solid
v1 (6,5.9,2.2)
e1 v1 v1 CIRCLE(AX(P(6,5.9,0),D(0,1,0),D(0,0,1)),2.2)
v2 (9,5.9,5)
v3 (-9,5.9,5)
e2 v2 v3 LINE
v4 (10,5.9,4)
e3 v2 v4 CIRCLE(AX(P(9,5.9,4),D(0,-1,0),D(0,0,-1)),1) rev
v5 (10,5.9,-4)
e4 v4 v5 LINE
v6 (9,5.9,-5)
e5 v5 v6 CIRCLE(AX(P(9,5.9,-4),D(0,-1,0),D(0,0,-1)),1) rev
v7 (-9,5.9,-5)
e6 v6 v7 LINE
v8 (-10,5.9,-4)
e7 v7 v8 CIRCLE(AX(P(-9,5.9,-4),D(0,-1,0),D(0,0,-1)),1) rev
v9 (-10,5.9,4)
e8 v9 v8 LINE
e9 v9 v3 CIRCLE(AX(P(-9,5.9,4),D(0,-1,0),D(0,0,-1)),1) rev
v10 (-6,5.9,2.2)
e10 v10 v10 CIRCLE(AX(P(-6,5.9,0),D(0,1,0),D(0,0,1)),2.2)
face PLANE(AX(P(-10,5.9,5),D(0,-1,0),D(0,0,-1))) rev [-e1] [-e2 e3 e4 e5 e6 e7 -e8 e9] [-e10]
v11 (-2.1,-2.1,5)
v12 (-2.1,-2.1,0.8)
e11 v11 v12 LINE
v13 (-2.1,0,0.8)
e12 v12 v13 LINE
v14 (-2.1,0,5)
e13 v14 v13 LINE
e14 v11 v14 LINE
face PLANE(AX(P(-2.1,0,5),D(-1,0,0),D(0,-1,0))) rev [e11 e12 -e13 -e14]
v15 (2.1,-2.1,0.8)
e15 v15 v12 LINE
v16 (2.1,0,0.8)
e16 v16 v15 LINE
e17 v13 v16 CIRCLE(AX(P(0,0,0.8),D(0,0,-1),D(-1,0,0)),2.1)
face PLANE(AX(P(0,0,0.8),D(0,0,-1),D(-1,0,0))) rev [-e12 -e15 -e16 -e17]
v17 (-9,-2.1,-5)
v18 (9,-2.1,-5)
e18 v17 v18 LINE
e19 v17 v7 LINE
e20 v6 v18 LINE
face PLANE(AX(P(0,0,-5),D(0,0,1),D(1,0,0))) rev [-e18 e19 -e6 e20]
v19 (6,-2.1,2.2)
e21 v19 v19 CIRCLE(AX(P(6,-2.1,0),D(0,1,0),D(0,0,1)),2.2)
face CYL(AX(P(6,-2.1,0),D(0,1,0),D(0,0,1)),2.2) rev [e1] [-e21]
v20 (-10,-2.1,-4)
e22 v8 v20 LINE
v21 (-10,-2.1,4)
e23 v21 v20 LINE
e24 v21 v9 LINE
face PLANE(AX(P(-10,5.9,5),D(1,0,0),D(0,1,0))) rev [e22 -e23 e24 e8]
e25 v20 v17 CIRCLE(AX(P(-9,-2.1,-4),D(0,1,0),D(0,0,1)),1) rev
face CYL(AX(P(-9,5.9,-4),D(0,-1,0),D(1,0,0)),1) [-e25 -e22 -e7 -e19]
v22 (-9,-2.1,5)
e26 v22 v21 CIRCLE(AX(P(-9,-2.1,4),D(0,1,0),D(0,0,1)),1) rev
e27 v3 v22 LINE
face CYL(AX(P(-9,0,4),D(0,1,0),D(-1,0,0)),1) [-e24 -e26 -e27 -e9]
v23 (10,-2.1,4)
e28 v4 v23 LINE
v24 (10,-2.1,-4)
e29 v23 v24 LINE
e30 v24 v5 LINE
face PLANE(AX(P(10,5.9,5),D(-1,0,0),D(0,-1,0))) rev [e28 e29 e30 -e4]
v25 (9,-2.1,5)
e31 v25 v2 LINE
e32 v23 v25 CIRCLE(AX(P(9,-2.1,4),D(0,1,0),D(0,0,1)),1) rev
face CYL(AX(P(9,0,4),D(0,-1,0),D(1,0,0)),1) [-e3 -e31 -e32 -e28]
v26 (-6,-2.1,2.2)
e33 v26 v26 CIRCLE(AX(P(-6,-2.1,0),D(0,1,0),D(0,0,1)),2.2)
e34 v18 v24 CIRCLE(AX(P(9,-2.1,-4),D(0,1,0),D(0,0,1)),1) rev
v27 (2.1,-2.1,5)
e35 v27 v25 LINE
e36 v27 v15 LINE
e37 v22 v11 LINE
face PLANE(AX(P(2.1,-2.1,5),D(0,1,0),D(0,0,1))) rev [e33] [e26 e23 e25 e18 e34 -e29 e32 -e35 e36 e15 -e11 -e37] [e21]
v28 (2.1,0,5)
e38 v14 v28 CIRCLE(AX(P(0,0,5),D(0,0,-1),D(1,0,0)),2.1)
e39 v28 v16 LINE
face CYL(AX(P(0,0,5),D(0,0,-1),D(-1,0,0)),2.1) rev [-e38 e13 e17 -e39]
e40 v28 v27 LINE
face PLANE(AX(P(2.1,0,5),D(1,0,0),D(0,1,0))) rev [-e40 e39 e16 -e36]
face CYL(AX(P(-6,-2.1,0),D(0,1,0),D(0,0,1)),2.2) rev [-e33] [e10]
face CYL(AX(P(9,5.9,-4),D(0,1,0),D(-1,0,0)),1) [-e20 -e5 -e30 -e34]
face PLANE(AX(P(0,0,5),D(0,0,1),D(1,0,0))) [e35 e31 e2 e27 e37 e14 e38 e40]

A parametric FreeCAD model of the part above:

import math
import FreeCAD as App
import Part
import Sketcher
from FreeCAD import Vector


def edges_at(feature, points):
    """Names of the edges that pass closest to the given points."""
    edges = feature.Shape.Edges
    near = lambda p: min(range(len(edges)), key=lambda i: edges[i].distToShape(Part.Vertex(*p))[0])
    return sorted({f"Edge{near(p) + 1}" for p in points})

doc = App.newDocument("Part")
body = doc.addObject("PartDesign::Body", "Body")

sketch1 = body.newObject("Sketcher::SketchObject", "Sketch")
sketch1.AttachmentSupport = (doc.getObject("XY_Plane"), [""])
sketch1.MapMode = "FlatFace"
sketch1.addGeometry(Part.LineSegment(Vector(2.1, -2.1, 0), Vector(10, -2.1, 0)), False)
sketch1.addGeometry(Part.LineSegment(Vector(10, -2.1, 0), Vector(10, 5.9, 0)), False)
sketch1.addGeometry(Part.LineSegment(Vector(10, 5.9, 0), Vector(-10, 5.9, 0)), False)
sketch1.addGeometry(Part.LineSegment(Vector(-10, 5.9, 0), Vector(-10, -2.1, 0)), False)
sketch1.addGeometry(Part.LineSegment(Vector(-10, -2.1, 0), Vector(-2.1, -2.1, 0)), False)
sketch1.addGeometry(Part.LineSegment(Vector(-2.1, -2.1, 0), Vector(-2.1, 0, 0)), False)
sketch1.addGeometry(Part.ArcOfCircle(Part.Circle(Vector(0, 0, 0), Vector(0, 0, 1), 2.1), math.radians(0), math.radians(180)), False)
sketch1.addGeometry(Part.LineSegment(Vector(2.1, 0, 0), Vector(2.1, -2.1, 0)), False)
sketch1.addConstraint(Sketcher.Constraint("Coincident", 0, 2, 1, 1))
sketch1.addConstraint(Sketcher.Constraint("Coincident", 1, 2, 2, 1))
sketch1.addConstraint(Sketcher.Constraint("Coincident", 2, 2, 3, 1))
sketch1.addConstraint(Sketcher.Constraint("Coincident", 3, 2, 4, 1))
sketch1.addConstraint(Sketcher.Constraint("Coincident", 4, 2, 5, 1))
sketch1.addConstraint(Sketcher.Constraint("Tangent", 5, 2, 6, 2))
sketch1.addConstraint(Sketcher.Constraint("Tangent", 6, 1, 7, 1))
sketch1.addConstraint(Sketcher.Constraint("Coincident", 7, 2, 0, 1))
sketch1.addConstraint(Sketcher.Constraint("Horizontal", 0))
sketch1.addConstraint(Sketcher.Constraint("Vertical", 1))
sketch1.addConstraint(Sketcher.Constraint("Horizontal", 2))
sketch1.addConstraint(Sketcher.Constraint("Vertical", 3))
sketch1.addConstraint(Sketcher.Constraint("Horizontal", 4))
sketch1.addConstraint(Sketcher.Constraint("Vertical", 5))
sketch1.addConstraint(Sketcher.Constraint("Vertical", 7))
sketch1.addConstraint(Sketcher.Constraint("Coincident", 6, 3, -1, 1))
sketch1.addConstraint(Sketcher.Constraint("Symmetric", 0, 2, 3, 2, -2))
sketch1.addConstraint(Sketcher.Constraint("Radius", 6, 2.1))
sketch1.addConstraint(Sketcher.Constraint("DistanceX", 2, 2, 2, 1, 20.0))
sketch1.addConstraint(Sketcher.Constraint("DistanceY", 1, 1, 1, 2, 8.0))
sketch1.addConstraint(Sketcher.Constraint("DistanceY", 5, 1, 5, 2, 2.1))
pad1 = body.newObject("PartDesign::Pad", "Pad")
pad1.Profile = sketch1
pad1.Length = 10
pad1.Midplane = True

sketch2 = body.newObject("Sketcher::SketchObject", "Sketch001")
sketch2.AttachmentSupport = (doc.getObject("XZ_Plane"), [""])
sketch2.MapMode = "FlatFace"
sketch2.AttachmentOffset = App.Placement(Vector(0, 0, -5.9), App.Rotation())
sketch2.addGeometry(Part.Circle(Vector(-6, 0, 0), Vector(0, 0, 1), 2.2), False)
sketch2.addGeometry(Part.Circle(Vector(6, 0, 0), Vector(0, 0, 1), 2.2), False)
sketch2.addConstraint(Sketcher.Constraint("Equal", 0, 1))
sketch2.addConstraint(Sketcher.Constraint("Symmetric", 0, 3, 1, 3, -1, 1))
sketch2.addConstraint(Sketcher.Constraint("PointOnObject", 0, 3, -1))
sketch2.addConstraint(Sketcher.Constraint("Diameter", 0, 4.4))
sketch2.addConstraint(Sketcher.Constraint("DistanceX", 0, 3, -1, 1, 6.0))
pocket1 = body.newObject("PartDesign::Pocket", "Pocket")
pocket1.Profile = sketch2
pocket1.Type = "ThroughAll"
pocket1.Reversed = True

sketch3 = body.newObject("Sketcher::SketchObject", "Sketch002")
sketch3.AttachmentSupport = (doc.getObject("XY_Plane"), [""])
sketch3.MapMode = "FlatFace"
sketch3.AttachmentOffset = App.Placement(Vector(0, 0, 0.8), App.Rotation())
sketch3.addGeometry(Part.LineSegment(Vector(-2.1, -2.1, 0), Vector(-2.1, 0, 0)), False)
sketch3.addGeometry(Part.ArcOfCircle(Part.Circle(Vector(0, 0, 0), Vector(0, 0, 1), 2.1), math.radians(0), math.radians(180)), False)
sketch3.addGeometry(Part.LineSegment(Vector(2.1, 0, 0), Vector(2.1, -2.1, 0)), False)
sketch3.addGeometry(Part.LineSegment(Vector(2.1, -2.1, 0), Vector(-2.1, -2.1, 0)), False)
sketch3.addConstraint(Sketcher.Constraint("Tangent", 0, 2, 1, 2))
sketch3.addConstraint(Sketcher.Constraint("Tangent", 1, 1, 2, 1))
sketch3.addConstraint(Sketcher.Constraint("Coincident", 2, 2, 3, 1))
sketch3.addConstraint(Sketcher.Constraint("Coincident", 3, 2, 0, 1))
sketch3.addConstraint(Sketcher.Constraint("Vertical", 0))
sketch3.addConstraint(Sketcher.Constraint("Vertical", 2))
sketch3.addConstraint(Sketcher.Constraint("Horizontal", 3))
sketch3.addConstraint(Sketcher.Constraint("Coincident", 1, 3, -1, 1))
sketch3.addConstraint(Sketcher.Constraint("Radius", 1, 2.1))
sketch3.addConstraint(Sketcher.Constraint("DistanceY", 0, 1, 0, 2, 2.1))
pad2 = body.newObject("PartDesign::Pad", "Pad001")
pad2.Profile = sketch3
pad2.Length = 5.8
pad2.Reversed = True
doc.recompute()

fillet = body.newObject("PartDesign::Fillet", "Fillet")
fillet.Base = (pad2, edges_at(pad2, [
    (-10, 1.9, -5),
    (10, 1.9, 5),
    (-10, 1.9, 5),
    (10, 1.9, -5),
]))
fillet.Radius = 1

doc.recompute()
